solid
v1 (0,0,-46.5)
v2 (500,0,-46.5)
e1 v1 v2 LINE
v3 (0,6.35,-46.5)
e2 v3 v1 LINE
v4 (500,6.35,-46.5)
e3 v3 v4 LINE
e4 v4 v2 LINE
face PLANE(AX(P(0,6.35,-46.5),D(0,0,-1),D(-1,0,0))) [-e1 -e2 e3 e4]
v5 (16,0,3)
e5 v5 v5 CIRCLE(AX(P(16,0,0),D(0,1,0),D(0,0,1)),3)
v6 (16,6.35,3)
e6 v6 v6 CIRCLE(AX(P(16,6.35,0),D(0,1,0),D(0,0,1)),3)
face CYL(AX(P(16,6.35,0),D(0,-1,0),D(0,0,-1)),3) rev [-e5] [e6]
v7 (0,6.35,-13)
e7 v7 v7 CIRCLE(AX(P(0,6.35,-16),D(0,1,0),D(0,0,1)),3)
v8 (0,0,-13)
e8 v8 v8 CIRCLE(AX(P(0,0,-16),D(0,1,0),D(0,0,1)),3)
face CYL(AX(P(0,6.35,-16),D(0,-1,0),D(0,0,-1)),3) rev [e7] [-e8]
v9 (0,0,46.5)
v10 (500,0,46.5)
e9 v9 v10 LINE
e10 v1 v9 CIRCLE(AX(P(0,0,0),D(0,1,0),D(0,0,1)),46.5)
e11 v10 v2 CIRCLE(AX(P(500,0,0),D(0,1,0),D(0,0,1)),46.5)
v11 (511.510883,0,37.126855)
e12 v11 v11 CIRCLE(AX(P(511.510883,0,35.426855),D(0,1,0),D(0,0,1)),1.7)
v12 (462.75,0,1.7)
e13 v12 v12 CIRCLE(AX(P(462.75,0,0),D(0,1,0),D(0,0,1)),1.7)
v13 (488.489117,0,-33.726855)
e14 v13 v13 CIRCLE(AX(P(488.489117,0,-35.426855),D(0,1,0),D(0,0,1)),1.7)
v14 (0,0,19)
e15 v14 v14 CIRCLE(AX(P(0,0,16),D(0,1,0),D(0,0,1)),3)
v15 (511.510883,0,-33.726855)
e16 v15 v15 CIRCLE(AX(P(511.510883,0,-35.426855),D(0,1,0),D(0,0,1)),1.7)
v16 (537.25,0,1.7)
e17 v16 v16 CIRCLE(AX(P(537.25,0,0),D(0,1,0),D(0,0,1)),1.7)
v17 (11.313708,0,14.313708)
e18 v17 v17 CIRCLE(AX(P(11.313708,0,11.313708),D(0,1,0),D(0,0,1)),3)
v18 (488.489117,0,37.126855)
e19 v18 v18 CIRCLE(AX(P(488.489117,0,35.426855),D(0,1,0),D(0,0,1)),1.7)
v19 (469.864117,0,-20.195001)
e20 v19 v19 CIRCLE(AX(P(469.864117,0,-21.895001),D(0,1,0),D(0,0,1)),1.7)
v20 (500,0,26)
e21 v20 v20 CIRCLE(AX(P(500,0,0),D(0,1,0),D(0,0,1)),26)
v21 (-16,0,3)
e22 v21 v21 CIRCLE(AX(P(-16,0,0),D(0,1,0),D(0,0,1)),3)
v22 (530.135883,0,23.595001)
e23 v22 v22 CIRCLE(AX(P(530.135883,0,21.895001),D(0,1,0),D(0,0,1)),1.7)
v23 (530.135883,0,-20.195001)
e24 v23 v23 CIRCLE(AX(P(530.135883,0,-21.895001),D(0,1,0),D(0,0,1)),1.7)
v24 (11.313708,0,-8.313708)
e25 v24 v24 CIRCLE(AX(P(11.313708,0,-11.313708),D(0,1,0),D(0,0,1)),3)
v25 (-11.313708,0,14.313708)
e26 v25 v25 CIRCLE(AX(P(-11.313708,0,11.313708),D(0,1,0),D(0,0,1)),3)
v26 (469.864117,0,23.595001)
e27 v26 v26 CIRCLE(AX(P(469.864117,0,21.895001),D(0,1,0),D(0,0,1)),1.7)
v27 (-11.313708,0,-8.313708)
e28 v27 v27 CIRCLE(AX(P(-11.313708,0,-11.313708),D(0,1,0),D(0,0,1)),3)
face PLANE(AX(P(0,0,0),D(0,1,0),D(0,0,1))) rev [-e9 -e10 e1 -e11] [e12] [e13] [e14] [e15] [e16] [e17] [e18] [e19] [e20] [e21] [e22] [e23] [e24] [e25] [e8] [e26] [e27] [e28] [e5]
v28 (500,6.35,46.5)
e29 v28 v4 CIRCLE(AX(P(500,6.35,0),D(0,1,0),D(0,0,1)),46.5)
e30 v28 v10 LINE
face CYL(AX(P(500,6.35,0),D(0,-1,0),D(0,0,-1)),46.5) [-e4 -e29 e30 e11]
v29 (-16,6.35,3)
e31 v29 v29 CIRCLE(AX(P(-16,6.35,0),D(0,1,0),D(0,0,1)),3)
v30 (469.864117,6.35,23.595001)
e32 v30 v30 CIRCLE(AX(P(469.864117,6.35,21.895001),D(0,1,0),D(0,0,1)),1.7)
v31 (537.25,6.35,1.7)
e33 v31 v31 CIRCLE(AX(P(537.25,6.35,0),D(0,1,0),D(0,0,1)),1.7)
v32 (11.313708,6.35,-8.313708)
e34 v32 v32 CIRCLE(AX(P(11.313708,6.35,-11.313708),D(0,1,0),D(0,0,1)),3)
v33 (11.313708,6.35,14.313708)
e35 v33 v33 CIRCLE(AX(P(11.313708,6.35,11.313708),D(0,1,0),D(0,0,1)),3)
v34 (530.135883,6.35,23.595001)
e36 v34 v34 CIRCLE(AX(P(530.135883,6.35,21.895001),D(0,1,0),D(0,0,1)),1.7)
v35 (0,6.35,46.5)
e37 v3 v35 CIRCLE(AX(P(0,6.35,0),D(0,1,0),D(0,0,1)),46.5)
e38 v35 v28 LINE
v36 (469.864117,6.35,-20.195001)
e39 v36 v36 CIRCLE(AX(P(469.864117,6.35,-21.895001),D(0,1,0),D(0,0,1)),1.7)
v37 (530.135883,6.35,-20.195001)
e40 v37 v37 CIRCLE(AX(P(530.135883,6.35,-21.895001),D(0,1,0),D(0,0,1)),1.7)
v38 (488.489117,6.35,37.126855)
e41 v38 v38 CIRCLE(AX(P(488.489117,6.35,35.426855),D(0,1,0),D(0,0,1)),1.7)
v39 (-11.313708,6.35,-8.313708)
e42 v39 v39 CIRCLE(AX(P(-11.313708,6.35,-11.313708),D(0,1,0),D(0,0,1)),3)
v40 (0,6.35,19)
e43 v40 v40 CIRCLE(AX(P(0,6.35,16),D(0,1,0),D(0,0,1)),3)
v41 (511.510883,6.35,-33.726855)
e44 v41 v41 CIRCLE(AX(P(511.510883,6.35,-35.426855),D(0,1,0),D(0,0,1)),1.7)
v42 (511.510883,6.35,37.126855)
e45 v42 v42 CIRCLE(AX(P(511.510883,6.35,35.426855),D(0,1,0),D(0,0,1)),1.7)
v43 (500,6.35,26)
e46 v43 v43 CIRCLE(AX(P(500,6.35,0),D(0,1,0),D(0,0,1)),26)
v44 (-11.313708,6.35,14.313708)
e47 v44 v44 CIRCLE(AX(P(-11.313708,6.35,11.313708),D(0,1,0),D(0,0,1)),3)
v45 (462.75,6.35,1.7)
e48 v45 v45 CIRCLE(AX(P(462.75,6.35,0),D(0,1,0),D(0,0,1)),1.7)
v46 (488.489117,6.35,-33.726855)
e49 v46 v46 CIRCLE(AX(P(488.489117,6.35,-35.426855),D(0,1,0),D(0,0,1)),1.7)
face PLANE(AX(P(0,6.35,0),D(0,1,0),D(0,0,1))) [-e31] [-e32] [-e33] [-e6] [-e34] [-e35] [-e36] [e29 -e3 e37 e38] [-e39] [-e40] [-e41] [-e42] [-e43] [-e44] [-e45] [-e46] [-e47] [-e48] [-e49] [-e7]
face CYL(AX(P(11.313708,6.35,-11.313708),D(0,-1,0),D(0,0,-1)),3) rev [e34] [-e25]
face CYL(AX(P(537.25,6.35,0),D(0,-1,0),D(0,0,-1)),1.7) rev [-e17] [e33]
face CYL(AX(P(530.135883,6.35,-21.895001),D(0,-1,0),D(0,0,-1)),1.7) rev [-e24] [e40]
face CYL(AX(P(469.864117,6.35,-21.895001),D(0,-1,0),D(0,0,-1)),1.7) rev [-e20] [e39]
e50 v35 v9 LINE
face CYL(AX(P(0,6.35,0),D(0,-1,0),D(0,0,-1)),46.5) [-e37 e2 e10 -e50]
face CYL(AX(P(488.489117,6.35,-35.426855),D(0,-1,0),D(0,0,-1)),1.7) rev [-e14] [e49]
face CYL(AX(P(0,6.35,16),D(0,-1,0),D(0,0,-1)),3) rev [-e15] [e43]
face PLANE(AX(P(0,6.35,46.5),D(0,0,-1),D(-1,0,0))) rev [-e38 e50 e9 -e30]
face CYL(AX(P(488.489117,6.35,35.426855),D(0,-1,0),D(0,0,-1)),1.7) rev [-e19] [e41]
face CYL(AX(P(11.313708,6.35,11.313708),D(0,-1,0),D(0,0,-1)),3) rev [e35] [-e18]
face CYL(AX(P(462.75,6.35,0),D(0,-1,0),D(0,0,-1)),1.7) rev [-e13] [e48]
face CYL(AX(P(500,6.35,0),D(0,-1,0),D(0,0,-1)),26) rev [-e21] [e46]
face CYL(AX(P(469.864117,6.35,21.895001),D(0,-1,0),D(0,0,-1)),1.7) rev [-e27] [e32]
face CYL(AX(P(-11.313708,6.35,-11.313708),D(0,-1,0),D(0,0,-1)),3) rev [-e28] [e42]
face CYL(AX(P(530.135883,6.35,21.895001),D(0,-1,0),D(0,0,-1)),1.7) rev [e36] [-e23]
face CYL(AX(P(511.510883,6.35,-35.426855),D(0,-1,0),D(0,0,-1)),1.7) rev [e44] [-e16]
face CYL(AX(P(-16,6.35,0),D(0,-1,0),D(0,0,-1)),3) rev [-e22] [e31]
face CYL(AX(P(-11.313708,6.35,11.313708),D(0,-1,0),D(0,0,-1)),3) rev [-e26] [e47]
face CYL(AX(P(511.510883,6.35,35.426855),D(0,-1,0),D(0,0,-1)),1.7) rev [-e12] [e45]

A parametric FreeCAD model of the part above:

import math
import FreeCAD as App
import Part
import Sketcher
from FreeCAD import Vector

doc = App.newDocument("Part")
body = doc.addObject("PartDesign::Body", "Body")

# Sketch on XZ plane
sketch1 = body.newObject("Sketcher::SketchObject", "Sketch")
sketch1.AttachmentSupport = (doc.getObject("XZ_Plane"), [""])
sketch1.MapMode = "FlatFace"
sketch1.addGeometry(Part.LineSegment(Vector(500, -46.5, 0), Vector(0, -46.5, 0)), False)
sketch1.addGeometry(Part.ArcOfCircle(Part.Circle(Vector(0, 0, 0), Vector(0, 0, 1), 46.5), math.radians(90), math.radians(270)), False)
sketch1.addGeometry(Part.LineSegment(Vector(0, 46.5, 0), Vector(500, 46.5, 0)), False)
sketch1.addGeometry(Part.ArcOfCircle(Part.Circle(Vector(500, 0, 0), Vector(0, 0, 1), 46.5), math.radians(-90), math.radians(90)), False)
sketch1.addGeometry(Part.Circle(Vector(511.5, 35.4, 0), Vector(0, 0, 1), 1.7), False)
sketch1.addGeometry(Part.Circle(Vector(488.5, 35.4, 0), Vector(0, 0, 1), 1.7), False)
sketch1.addGeometry(Part.Circle(Vector(530.1, 21.9, 0), Vector(0, 0, 1), 1.7), False)
sketch1.addGeometry(Part.Circle(Vector(469.9, 21.9, 0), Vector(0, 0, 1), 1.7), False)
sketch1.addGeometry(Part.Circle(Vector(0, 16, 0), Vector(0, 0, 1), 3), False)
sketch1.addGeometry(Part.Circle(Vector(11.3, 11.3, 0), Vector(0, 0, 1), 3), False)
sketch1.addGeometry(Part.Circle(Vector(-11.3, 11.3, 0), Vector(0, 0, 1), 3), False)
sketch1.addGeometry(Part.Circle(Vector(537.2, 0, 0), Vector(0, 0, 1), 1.7), False)
sketch1.addGeometry(Part.Circle(Vector(500, 0, 0), Vector(0, 0, 1), 26), False)
sketch1.addGeometry(Part.Circle(Vector(462.8, 0, 0), Vector(0, 0, 1), 1.7), False)
sketch1.addGeometry(Part.Circle(Vector(530.1, -21.9, 0), Vector(0, 0, 1), 1.7), False)
sketch1.addGeometry(Part.Circle(Vector(469.9, -21.9, 0), Vector(0, 0, 1), 1.7), False)
sketch1.addGeometry(Part.Circle(Vector(511.5, -35.4, 0), Vector(0, 0, 1), 1.7), False)
sketch1.addGeometry(Part.Circle(Vector(488.5, -35.4, 0), Vector(0, 0, 1), 1.7), False)
sketch1.addGeometry(Part.Circle(Vector(16, 0, 0), Vector(0, 0, 1), 3), False)
sketch1.addGeometry(Part.Circle(Vector(-16, 0, 0), Vector(0, 0, 1), 3), False)
sketch1.addGeometry(Part.Circle(Vector(11.3, -11.3, 0), Vector(0, 0, 1), 3), False)
sketch1.addGeometry(Part.Circle(Vector(-11.3, -11.3, 0), Vector(0, 0, 1), 3), False)
sketch1.addGeometry(Part.Circle(Vector(0, -16, 0), Vector(0, 0, 1), 3), False)
sketch1.addConstraint(Sketcher.Constraint("Tangent", 0, 2, 1, 2))
sketch1.addConstraint(Sketcher.Constraint("Tangent", 1, 1, 2, 1))
sketch1.addConstraint(Sketcher.Constraint("Tangent", 2, 2, 3, 2))
sketch1.addConstraint(Sketcher.Constraint("Tangent", 3, 1, 0, 1))
sketch1.addConstraint(Sketcher.Constraint("Horizontal", 0))
sketch1.addConstraint(Sketcher.Constraint("Horizontal", 2))
sketch1.addConstraint(Sketcher.Constraint("Coincident", 1, 3, -1, 1))
sketch1.addConstraint(Sketcher.Constraint("Coincident", 12, 3, 3, 3))
sketch1.addConstraint(Sketcher.Constraint("Equal", 4, 5))
sketch1.addConstraint(Sketcher.Constraint("Equal", 5, 6))
sketch1.addConstraint(Sketcher.Constraint("Equal", 6, 7))
sketch1.addConstraint(Sketcher.Constraint("Equal", 8, 9))
sketch1.addConstraint(Sketcher.Constraint("Equal", 9, 10))
sketch1.addConstraint(Sketcher.Constraint("Equal", 7, 11))
sketch1.addConstraint(Sketcher.Constraint("Equal", 11, 13))
sketch1.addConstraint(Sketcher.Constraint("Equal", 13, 14))
sketch1.addConstraint(Sketcher.Constraint("Equal", 14, 15))
sketch1.addConstraint(Sketcher.Constraint("Equal", 15, 16))
sketch1.addConstraint(Sketcher.Constraint("Equal", 16, 17))
sketch1.addConstraint(Sketcher.Constraint("Equal", 10, 18))
sketch1.addConstraint(Sketcher.Constraint("Equal", 18, 19))
sketch1.addConstraint(Sketcher.Constraint("Equal", 19, 20))
sketch1.addConstraint(Sketcher.Constraint("Equal", 20, 21))
sketch1.addConstraint(Sketcher.Constraint("Equal", 21, 22))
sketch1.addConstraint(Sketcher.Constraint("Symmetric", 18, 3, 19, 3, -1, 1))
sketch1.addConstraint(Sketcher.Constraint("Symmetric", 10, 3, 20, 3, -1, 1))
sketch1.addConstraint(Sketcher.Constraint("Symmetric", 9, 3, 21, 3, -1, 1))
sketch1.addConstraint(Sketcher.Constraint("Symmetric", 8, 3, 22, 3, -1, 1))
sketch1.addConstraint(Sketcher.Constraint("Symmetric", 9, 3, 10, 3, -2))
sketch1.addConstraint(Sketcher.Constraint("Symmetric", 6, 3, 14, 3, -1))
sketch1.addConstraint(Sketcher.Constraint("Symmetric", 7, 3, 15, 3, -1))
sketch1.addConstraint(Sketcher.Constraint("Symmetric", 4, 3, 16, 3, -1))
sketch1.addConstraint(Sketcher.Constraint("Symmetric", 5, 3, 17, 3, -1))
sketch1.addConstraint(Sketcher.Constraint("PointOnObject", 8, 3, -2))
sketch1.addConstraint(Sketcher.Constraint("PointOnObject", 11, 3, -1))
sketch1.addConstraint(Sketcher.Constraint("PointOnObject", 13, 3, -1))
sketch1.addConstraint(Sketcher.Constraint("PointOnObject", 18, 3, -1))
sketch1.addConstraint(Sketcher.Constraint("Horizontal", 4, 3, 5, 3))
sketch1.addConstraint(Sketcher.Constraint("Horizontal", 6, 3, 7, 3))
sketch1.addConstraint(Sketcher.Constraint("Diameter", 8, 6.0))
sketch1.addConstraint(Sketcher.Constraint("Diameter", 12, 52.0))
sketch1.addConstraint(Sketcher.Constraint("Diameter", 4, 3.4))
sketch1.addConstraint(Sketcher.Constraint("Radius", 1, 46.5))
sketch1.addConstraint(Sketcher.Constraint("DistanceX", 0, 2, 0, 1, 500.0))
sketch1.addConstraint(Sketcher.Constraint("DistanceY", -1, 1, 8, 3, 16.0))
sketch1.addConstraint(Sketcher.Constraint("DistanceX", -1, 1, 18, 3, 16.0))
sketch1.addConstraint(Sketcher.Constraint("DistanceX", -1, 1, 11, 3, 537.25))
sketch1.addConstraint(Sketcher.Constraint("DistanceX", -1, 1, 13, 3, 462.75))
sketch1.addConstraint(Sketcher.Constraint("DistanceY", 14, 3, 6, 3, 43.790001))
sketch1.addConstraint(Sketcher.Constraint("DistanceX", 4, 3, 6, 3, 18.625))
sketch1.addConstraint(Sketcher.Constraint("DistanceX", 7, 3, 5, 3, 18.625))
sketch1.addConstraint(Sketcher.Constraint("DistanceX", -1, 1, 9, 3, 11.313708))
sketch1.addConstraint(Sketcher.Constraint("DistanceY", -1, 1, 9, 3, 11.313708))
sketch1.addConstraint(Sketcher.Constraint("DistanceX", 9, 3, 7, 3, 458.550408))
sketch1.addConstraint(Sketcher.Constraint("DistanceX", -1, 1, 4, 3, 511.510883))
sketch1.addConstraint(Sketcher.Constraint("DistanceY", -1, 1, 4, 3, 35.426855))
pad1 = body.newObject("PartDesign::Pad", "Pad")
pad1.Profile = sketch1
pad1.Length = 6.35
pad1.Reversed = True

doc.recompute()
